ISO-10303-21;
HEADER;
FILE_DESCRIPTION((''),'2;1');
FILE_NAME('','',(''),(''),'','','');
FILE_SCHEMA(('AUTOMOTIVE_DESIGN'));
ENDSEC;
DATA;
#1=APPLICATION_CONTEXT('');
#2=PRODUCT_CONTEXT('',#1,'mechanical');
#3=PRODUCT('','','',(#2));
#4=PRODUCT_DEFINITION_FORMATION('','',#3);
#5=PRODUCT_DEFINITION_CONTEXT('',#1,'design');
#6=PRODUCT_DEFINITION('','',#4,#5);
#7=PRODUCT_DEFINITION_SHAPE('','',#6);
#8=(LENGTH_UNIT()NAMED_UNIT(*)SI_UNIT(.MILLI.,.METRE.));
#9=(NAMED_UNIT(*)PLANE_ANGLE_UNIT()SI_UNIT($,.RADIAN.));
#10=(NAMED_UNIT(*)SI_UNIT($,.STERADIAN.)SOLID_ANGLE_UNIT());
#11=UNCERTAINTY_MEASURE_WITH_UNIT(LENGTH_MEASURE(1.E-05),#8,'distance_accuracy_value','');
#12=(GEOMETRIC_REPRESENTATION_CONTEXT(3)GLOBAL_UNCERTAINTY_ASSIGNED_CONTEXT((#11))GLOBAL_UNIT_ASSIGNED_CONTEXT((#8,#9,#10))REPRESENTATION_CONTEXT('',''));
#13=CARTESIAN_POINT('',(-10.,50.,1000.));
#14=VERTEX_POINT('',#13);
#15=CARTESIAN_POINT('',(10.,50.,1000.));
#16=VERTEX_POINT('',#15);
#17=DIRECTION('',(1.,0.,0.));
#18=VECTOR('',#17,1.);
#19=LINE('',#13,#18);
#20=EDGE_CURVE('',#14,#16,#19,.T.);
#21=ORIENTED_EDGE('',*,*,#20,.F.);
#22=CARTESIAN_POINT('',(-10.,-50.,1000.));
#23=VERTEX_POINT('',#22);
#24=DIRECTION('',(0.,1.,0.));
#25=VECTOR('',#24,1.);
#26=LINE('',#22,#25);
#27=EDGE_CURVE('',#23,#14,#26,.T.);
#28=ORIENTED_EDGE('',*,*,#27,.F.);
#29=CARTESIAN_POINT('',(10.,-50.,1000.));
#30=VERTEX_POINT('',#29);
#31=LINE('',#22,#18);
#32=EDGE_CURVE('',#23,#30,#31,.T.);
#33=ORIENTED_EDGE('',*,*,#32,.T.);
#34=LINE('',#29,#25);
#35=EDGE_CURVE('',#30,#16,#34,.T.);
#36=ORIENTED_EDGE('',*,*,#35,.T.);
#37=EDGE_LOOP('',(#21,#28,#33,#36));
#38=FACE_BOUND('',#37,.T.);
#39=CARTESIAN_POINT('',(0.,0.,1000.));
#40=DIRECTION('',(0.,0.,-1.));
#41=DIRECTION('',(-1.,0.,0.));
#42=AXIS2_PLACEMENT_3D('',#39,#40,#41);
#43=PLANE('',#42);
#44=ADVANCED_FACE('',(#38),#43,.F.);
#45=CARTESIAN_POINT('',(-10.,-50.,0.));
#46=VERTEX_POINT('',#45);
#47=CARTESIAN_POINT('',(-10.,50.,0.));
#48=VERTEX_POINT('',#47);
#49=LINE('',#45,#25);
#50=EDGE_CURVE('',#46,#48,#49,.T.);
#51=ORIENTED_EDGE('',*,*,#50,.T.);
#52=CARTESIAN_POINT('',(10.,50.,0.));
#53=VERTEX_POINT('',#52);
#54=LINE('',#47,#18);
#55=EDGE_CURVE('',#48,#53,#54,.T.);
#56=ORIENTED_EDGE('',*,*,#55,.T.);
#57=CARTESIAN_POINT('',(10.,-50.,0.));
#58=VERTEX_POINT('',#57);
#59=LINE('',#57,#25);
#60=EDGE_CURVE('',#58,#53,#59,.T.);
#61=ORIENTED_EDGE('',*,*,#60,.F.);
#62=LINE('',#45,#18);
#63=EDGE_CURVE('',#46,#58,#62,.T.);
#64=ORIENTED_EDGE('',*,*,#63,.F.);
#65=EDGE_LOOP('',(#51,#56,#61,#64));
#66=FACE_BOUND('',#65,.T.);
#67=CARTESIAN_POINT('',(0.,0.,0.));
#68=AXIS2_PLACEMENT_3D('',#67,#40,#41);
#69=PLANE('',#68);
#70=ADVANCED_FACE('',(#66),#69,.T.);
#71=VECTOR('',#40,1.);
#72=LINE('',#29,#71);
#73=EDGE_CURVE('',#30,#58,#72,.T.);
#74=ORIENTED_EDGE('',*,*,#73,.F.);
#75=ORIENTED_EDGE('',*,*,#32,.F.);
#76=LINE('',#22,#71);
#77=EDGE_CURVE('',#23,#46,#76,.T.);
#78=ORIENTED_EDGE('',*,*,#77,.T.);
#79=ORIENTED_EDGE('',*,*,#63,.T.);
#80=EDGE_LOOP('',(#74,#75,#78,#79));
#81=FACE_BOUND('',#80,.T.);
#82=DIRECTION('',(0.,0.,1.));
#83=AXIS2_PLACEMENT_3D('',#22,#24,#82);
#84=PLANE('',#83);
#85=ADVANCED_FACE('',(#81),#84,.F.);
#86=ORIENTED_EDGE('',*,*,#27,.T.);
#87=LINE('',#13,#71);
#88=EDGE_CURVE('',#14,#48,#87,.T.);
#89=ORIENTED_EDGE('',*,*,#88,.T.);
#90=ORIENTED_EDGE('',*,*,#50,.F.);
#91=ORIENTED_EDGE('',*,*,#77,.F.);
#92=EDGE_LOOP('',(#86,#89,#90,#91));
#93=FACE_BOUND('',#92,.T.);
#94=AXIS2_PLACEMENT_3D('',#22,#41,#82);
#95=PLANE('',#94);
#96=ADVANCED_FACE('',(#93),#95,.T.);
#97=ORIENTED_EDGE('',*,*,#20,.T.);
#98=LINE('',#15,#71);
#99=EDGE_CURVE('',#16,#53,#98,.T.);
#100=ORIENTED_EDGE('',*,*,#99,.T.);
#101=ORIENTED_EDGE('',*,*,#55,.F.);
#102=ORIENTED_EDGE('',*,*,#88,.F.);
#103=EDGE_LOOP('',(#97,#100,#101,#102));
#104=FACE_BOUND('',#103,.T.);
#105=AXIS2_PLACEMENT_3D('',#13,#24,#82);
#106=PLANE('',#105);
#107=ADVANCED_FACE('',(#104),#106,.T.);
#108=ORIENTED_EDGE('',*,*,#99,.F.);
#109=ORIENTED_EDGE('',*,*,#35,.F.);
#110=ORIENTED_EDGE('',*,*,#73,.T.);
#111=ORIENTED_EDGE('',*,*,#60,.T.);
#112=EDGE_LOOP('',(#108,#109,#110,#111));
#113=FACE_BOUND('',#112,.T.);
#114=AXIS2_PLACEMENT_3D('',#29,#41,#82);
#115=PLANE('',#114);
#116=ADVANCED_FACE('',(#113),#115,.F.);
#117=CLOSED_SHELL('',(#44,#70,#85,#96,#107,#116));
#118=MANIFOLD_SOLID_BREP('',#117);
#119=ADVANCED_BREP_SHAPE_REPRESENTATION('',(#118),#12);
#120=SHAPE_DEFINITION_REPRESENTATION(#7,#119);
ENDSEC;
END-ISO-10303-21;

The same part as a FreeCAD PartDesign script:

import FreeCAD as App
import Part
import Sketcher
from FreeCAD import Vector
Q = App.Units.Quantity


def add_polygon(sketch, points):
    """Adds a closed chain of lines whose ends are joined by coincident constraints."""
    first, n = sketch.GeometryCount, len(points)
    for a, b in zip(points, points[1:] + points[:1]):
        sketch.addGeometry(Part.LineSegment(App.Vector(*a, 0), App.Vector(*b, 0)), False)
    for i in range(n):
        sketch.addConstraint(Sketcher.Constraint("Coincident", first + i, 2, first + (i + 1) % n, 1))

doc = App.newDocument("Part")
params = doc.addObject("Spreadsheet::Sheet", "Params")
for row, (alias, value) in enumerate([
    ("sketch1_width", "20 mm"),
    ("sketch1_height", "100 mm"),
    ("pad1_length", "1000 mm"),
], start=1):
    params.set(f"A{row}", alias)
    params.set(f"B{row}", "=" + value)
    params.setAlias(f"B{row}", alias)

body = doc.addObject("PartDesign::Body", "Body")

# Sketch on XY plane
sketch1 = body.newObject("Sketcher::SketchObject", "Sketch")
sketch1.AttachmentSupport = (doc.getObject("XY_Plane"), [""])
sketch1.MapMode = "FlatFace"
add_polygon(sketch1, [(-10, 50), (-10, -50), (10, -50), (10, 50)])  # lines 0-3
sketch1.addConstraint([
    Sketcher.Constraint("Vertical", 0),
    Sketcher.Constraint("Horizontal", 1),
    Sketcher.Constraint("Vertical", 2),
    Sketcher.Constraint("Horizontal", 3),
    Sketcher.Constraint("Symmetric", 0, 2, 2, 2, -1, 1),
    Sketcher.Constraint("DistanceX", 1, 1, 1, 2, Q("20 mm")),
    Sketcher.Constraint("DistanceY", 0, 2, 0, 1, Q("100 mm")),
])
sketch1.setExpression("Constraints[9]", "Params.sketch1_width")
sketch1.setExpression("Constraints[10]", "Params.sketch1_height")
pad1 = body.newObject("PartDesign::Pad", "Pad")
pad1.Profile = sketch1
pad1.setExpression("Length", "Params.pad1_length")

doc.recompute()
